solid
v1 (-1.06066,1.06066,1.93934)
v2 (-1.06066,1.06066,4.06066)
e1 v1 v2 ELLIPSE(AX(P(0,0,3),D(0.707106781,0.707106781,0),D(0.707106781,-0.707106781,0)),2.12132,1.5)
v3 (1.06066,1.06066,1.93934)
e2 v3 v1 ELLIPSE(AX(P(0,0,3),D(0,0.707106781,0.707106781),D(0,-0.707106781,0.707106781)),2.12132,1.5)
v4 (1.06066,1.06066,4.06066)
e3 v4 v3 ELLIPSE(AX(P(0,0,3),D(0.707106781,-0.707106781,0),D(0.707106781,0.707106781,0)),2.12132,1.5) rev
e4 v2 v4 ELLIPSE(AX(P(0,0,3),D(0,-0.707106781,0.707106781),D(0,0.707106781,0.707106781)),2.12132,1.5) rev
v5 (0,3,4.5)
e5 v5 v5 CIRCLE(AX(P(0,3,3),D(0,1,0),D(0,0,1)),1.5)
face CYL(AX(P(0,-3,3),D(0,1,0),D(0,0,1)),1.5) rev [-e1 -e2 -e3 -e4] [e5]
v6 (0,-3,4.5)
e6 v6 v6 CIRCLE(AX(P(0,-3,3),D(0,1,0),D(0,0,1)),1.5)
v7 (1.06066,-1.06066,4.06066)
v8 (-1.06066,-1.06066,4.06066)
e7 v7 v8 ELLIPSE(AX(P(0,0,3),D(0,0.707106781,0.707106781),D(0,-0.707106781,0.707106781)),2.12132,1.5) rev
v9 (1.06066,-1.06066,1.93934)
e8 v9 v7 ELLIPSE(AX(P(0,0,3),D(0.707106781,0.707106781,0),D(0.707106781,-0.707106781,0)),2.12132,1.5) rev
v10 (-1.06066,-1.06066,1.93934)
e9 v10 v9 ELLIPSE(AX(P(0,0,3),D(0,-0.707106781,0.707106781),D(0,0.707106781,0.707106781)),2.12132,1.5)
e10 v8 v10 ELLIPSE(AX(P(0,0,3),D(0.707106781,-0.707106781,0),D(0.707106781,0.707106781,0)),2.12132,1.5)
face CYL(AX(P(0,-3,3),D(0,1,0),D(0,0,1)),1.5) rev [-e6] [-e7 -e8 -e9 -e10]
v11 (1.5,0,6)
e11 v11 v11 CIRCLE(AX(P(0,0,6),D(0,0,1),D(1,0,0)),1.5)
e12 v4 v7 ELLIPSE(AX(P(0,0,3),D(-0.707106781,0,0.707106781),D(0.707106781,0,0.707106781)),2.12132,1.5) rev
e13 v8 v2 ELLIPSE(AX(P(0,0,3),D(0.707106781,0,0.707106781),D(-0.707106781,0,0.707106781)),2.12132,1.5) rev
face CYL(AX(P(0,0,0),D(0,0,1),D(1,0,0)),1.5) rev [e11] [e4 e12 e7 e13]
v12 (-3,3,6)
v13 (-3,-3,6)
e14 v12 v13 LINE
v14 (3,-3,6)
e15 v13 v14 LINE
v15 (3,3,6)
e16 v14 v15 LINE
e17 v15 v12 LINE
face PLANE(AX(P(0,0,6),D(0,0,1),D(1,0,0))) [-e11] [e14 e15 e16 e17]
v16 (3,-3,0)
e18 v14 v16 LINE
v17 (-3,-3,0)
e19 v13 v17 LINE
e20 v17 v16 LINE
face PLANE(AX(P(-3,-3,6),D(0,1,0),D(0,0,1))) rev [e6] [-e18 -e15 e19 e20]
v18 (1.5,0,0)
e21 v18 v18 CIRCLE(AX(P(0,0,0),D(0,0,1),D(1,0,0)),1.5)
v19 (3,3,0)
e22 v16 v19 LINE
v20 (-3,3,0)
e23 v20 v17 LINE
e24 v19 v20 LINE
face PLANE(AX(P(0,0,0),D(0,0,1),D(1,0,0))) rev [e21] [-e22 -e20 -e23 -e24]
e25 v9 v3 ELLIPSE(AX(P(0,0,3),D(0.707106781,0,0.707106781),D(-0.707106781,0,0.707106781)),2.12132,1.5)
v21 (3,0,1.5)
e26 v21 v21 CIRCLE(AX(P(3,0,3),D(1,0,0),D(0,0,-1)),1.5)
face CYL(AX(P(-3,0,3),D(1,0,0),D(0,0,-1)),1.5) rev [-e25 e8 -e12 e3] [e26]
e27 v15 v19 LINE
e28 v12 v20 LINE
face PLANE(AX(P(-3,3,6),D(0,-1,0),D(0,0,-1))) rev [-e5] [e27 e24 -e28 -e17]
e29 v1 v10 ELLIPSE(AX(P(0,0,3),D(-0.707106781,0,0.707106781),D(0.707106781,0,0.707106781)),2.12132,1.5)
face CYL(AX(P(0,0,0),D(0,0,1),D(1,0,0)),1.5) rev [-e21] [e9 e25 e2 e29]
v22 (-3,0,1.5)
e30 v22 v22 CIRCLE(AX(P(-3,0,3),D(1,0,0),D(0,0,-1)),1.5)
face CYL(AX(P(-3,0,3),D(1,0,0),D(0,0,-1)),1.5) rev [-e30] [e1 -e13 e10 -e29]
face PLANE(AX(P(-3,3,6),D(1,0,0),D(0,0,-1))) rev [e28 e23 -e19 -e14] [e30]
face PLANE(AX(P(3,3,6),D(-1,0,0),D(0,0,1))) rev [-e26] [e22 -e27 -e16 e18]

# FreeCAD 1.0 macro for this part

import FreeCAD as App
import Part
import Sketcher
from FreeCAD import Vector
Q = App.Units.Quantity

doc = App.newDocument("Part")
body = doc.addObject("PartDesign::Body", "Body")

# Sketch on XY plane
sketch1 = body.newObject("Sketcher::SketchObject", "Sketch")
sketch1.AttachmentSupport = (doc.getObject("XY_Plane"), [""])
sketch1.MapMode = "FlatFace"
sketch1.addGeometry(Part.LineSegment(Vector(-3, 3, 0), Vector(-3, -3, 0)), False)
sketch1.addGeometry(Part.LineSegment(Vector(-3, -3, 0), Vector(3, -3, 0)), False)
sketch1.addGeometry(Part.LineSegment(Vector(3, -3, 0), Vector(3, 3, 0)), False)
sketch1.addGeometry(Part.LineSegment(Vector(3, 3, 0), Vector(-3, 3, 0)), False)
sketch1.addConstraint(Sketcher.Constraint("Coincident", 0, 2, 1, 1))
sketch1.addConstraint(Sketcher.Constraint("Coincident", 1, 2, 2, 1))
sketch1.addConstraint(Sketcher.Constraint("Coincident", 2, 2, 3, 1))
sketch1.addConstraint(Sketcher.Constraint("Coincident", 3, 2, 0, 1))
sketch1.addConstraint(Sketcher.Constraint("Vertical", 0))
sketch1.addConstraint(Sketcher.Constraint("Horizontal", 1))
sketch1.addConstraint(Sketcher.Constraint("Vertical", 2))
sketch1.addConstraint(Sketcher.Constraint("Horizontal", 3))
sketch1.addConstraint(Sketcher.Constraint("Symmetric", 0, 2, 2, 2, -1, 1))
sketch1.addConstraint(Sketcher.Constraint("Equal", 3, 0))
sketch1.addConstraint(Sketcher.Constraint("DistanceX", 1, 1, 1, 2, Q("6 mm")))
pad1 = body.newObject("PartDesign::Pad", "Pad")
pad1.Profile = sketch1
pad1.Length = 6

# Sketch on XY plane
sketch2 = body.newObject("Sketcher::SketchObject", "Sketch001")
sketch2.AttachmentSupport = (doc.getObject("XY_Plane"), [""])
sketch2.MapMode = "FlatFace"
sketch2.AttachmentOffset = App.Placement(Vector(0, 0, 6), App.Rotation())
sketch2.addGeometry(Part.Circle(Vector(0, 0, 0), Vector(0, 0, 1), 1.5), False)
sketch2.addConstraint(Sketcher.Constraint("Coincident", 0, 3, -1, 1))
sketch2.addConstraint(Sketcher.Constraint("Diameter", 0, Q("3 mm")))
pocket1 = body.newObject("PartDesign::Pocket", "Pocket")
pocket1.Profile = sketch2
pocket1.Type = "ThroughAll"

# Sketch on YZ plane
sketch3 = body.newObject("Sketcher::SketchObject", "Sketch002")
sketch3.AttachmentSupport = (doc.getObject("YZ_Plane"), [""])
sketch3.MapMode = "FlatFace"
sketch3.AttachmentOffset = App.Placement(Vector(0, 0, 3), App.Rotation())
sketch3.addGeometry(Part.Circle(Vector(0, 3, 0), Vector(0, 0, 1), 1.5), False)
sketch3.addConstraint(Sketcher.Constraint("PointOnObject", 0, 3, -2))
sketch3.addConstraint(Sketcher.Constraint("Diameter", 0, Q("3 mm")))
sketch3.addConstraint(Sketcher.Constraint("DistanceY", -1, 1, 0, 3, Q("3 mm")))
pocket2 = body.newObject("PartDesign::Pocket", "Pocket001")
pocket2.Profile = sketch3
pocket2.Type = "ThroughAll"

# Sketch on XZ plane
sketch4 = body.newObject("Sketcher::SketchObject", "Sketch003")
sketch4.AttachmentSupport = (doc.getObject("XZ_Plane"), [""])
sketch4.MapMode = "FlatFace"
sketch4.AttachmentOffset = App.Placement(Vector(0, 0, -3), App.Rotation())
sketch4.addGeometry(Part.Circle(Vector(0, 3, 0), Vector(0, 0, 1), 1.5), False)
sketch4.addConstraint(Sketcher.Constraint("PointOnObject", 0, 3, -2))
sketch4.addConstraint(Sketcher.Constraint("Diameter", 0, Q("3 mm")))
sketch4.addConstraint(Sketcher.Constraint("DistanceY", -1, 1, 0, 3, Q("3 mm")))
pocket3 = body.newObject("PartDesign::Pocket", "Pocket002")
pocket3.Profile = sketch4
pocket3.Type = "ThroughAll"
pocket3.Reversed = True

doc.recompute()
